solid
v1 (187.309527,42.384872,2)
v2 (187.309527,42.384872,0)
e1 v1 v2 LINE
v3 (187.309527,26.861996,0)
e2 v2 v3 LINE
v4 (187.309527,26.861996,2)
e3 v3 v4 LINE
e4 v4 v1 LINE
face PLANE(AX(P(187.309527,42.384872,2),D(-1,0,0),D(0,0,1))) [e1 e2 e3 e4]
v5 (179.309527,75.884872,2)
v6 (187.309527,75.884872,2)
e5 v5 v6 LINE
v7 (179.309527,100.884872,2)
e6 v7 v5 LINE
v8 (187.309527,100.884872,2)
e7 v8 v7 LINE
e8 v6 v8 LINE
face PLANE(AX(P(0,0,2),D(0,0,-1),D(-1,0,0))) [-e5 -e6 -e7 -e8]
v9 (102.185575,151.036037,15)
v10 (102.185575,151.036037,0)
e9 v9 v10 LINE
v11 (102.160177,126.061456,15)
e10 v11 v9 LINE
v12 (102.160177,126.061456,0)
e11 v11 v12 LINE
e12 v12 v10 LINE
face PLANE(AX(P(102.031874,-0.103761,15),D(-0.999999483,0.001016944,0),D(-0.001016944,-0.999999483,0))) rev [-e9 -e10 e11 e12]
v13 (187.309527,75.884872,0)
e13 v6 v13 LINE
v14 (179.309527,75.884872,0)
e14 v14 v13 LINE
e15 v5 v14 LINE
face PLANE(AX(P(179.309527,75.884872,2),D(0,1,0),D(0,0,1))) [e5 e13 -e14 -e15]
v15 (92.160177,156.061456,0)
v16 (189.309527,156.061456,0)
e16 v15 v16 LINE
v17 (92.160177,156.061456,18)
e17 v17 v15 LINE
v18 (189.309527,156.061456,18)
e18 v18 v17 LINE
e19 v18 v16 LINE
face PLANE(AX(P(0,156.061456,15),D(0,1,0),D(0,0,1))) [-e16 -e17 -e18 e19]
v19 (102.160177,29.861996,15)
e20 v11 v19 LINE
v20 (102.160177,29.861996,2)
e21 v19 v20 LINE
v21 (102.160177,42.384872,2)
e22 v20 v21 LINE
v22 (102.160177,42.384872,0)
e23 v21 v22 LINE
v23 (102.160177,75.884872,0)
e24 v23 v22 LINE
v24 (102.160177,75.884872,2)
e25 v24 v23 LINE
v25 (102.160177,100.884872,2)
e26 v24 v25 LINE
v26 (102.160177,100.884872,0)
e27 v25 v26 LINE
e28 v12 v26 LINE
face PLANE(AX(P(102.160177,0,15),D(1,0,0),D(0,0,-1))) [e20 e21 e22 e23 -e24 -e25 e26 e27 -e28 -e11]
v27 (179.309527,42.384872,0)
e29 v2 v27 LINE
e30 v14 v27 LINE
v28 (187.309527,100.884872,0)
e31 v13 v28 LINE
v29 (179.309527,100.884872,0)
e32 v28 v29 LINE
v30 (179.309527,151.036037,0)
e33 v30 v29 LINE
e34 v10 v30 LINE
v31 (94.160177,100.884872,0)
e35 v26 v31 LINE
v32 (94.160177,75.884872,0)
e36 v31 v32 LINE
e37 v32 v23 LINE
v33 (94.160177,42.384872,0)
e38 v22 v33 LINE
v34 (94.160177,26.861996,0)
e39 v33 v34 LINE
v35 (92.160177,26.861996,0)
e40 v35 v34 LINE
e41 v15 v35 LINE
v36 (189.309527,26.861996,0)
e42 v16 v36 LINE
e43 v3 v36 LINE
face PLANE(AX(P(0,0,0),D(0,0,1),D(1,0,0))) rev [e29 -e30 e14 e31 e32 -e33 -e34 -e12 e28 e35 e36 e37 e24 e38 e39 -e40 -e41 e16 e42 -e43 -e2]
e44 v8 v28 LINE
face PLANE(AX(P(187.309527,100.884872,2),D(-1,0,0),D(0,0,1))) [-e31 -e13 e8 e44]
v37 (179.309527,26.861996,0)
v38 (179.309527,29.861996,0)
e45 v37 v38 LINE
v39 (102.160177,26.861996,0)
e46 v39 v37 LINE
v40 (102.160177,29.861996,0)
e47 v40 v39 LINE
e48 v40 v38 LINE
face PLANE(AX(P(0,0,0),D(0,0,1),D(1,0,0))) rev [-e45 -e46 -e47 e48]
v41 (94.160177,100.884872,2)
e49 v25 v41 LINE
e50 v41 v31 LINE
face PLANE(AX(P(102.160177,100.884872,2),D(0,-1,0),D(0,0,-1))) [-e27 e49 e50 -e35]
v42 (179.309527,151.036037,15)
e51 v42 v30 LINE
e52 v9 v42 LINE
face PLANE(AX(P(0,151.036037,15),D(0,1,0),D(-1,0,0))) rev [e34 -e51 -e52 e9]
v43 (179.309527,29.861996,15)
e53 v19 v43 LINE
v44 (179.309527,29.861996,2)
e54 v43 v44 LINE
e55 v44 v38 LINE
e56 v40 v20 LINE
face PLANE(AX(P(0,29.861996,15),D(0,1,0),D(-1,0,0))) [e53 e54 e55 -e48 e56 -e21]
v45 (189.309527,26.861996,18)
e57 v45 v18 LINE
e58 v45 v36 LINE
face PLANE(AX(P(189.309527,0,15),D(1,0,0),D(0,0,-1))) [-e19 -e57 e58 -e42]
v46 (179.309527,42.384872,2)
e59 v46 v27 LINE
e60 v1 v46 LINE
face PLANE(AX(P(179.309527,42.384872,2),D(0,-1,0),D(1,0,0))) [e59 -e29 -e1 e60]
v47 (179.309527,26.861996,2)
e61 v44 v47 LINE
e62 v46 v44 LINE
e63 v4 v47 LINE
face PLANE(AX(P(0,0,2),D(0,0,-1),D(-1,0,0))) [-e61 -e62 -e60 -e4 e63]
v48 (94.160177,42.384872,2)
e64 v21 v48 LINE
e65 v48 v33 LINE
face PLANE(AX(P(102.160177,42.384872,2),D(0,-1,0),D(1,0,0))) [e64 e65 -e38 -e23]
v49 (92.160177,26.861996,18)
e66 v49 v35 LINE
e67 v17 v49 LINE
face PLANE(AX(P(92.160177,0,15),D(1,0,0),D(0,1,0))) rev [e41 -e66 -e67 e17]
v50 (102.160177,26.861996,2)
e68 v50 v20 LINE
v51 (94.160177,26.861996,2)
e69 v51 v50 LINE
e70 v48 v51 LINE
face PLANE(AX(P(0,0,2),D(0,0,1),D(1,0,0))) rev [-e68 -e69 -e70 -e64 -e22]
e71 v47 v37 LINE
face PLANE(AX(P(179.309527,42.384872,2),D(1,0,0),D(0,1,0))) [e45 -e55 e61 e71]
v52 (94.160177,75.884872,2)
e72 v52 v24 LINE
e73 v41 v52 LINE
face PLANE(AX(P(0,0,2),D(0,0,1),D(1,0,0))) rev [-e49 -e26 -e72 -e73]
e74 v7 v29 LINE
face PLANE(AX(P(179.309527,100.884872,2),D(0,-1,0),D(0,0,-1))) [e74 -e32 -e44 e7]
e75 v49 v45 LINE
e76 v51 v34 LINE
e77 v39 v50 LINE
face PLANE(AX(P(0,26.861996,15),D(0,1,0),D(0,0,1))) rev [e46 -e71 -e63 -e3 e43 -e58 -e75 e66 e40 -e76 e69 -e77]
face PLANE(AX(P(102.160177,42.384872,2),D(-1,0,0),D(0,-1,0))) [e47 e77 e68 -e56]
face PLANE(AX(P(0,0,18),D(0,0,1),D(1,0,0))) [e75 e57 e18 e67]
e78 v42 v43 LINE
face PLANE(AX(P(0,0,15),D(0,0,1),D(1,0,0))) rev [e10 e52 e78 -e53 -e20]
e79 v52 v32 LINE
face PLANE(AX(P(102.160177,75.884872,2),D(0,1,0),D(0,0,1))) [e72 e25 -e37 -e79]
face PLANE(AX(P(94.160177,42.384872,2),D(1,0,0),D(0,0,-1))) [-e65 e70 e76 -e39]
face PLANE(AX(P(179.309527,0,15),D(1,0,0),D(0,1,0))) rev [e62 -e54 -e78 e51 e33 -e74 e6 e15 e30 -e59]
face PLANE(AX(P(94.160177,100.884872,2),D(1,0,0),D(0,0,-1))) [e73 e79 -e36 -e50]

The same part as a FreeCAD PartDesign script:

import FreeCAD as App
import Part
import Sketcher
Q = App.Units.Quantity


def add_polygon(sketch, points):
    """Adds a closed chain of lines whose ends are joined by coincident constraints."""
    first, n = sketch.GeometryCount, len(points)
    for a, b in zip(points, points[1:] + points[:1]):
        sketch.addGeometry(Part.LineSegment(App.Vector(*a, 0), App.Vector(*b, 0)), False)
    for i in range(n):
        sketch.addConstraint(Sketcher.Constraint("Coincident", first + i, 2, first + (i + 1) % n, 1))

doc = App.newDocument("Part")
body = doc.addObject("PartDesign::Body", "Body")

# Sketch on XY plane
sketch1 = doc.addObject("Sketcher::SketchObject", "Sketch")
body.addObject(sketch1)
sketch1.AttachmentSupport = (doc.XY_Plane, [""])
sketch1.MapMode = "FlatFace"
add_polygon(sketch1, [(92, 156), (92, 27), (189, 27), (189, 156)])  # lines 0-3
add_polygon(sketch1, [(102, 30), (102, 126), (102, 151), (179, 151), (179, 30)])  # lines 4-8
sketch1.addConstraint(Sketcher.Constraint("Vertical", 0))
sketch1.addConstraint(Sketcher.Constraint("Horizontal", 1))
sketch1.addConstraint(Sketcher.Constraint("Vertical", 2))
sketch1.addConstraint(Sketcher.Constraint("Horizontal", 3))
sketch1.addConstraint(Sketcher.Constraint("Vertical", 4))
sketch1.addConstraint(Sketcher.Constraint("Horizontal", 6))
sketch1.addConstraint(Sketcher.Constraint("Vertical", 7))
sketch1.addConstraint(Sketcher.Constraint("Horizontal", 8))
sketch1.addConstraint(Sketcher.Constraint("DistanceX", 3, 2, 4, 2, Q("10 mm")))
sketch1.addConstraint(Sketcher.Constraint("DistanceY", 4, 2, 3, 2, Q("30 mm")))
sketch1.addConstraint(Sketcher.Constraint("DistanceX", 6, 2, 2, 2, Q("10 mm")))
sketch1.addConstraint(Sketcher.Constraint("DistanceY", 1, 2, 7, 2, Q("3 mm")))
sketch1.addConstraint(Sketcher.Constraint("DistanceX", 1, 1, 1, 2, Q("97.14935 mm")))
sketch1.addConstraint(Sketcher.Constraint("DistanceY", 0, 2, 0, 1, Q("129.19946 mm")))
sketch1.addConstraint(Sketcher.Constraint("DistanceY", 7, 2, 7, 1, Q("121.174041 mm")))
sketch1.addConstraint(Sketcher.Constraint("DistanceX", 6, 1, 6, 2, Q("77.123952 mm")))
sketch1.addConstraint(Sketcher.Constraint("DistanceX", -1, 1, 0, 2, Q("92.160177 mm")))
sketch1.addConstraint(Sketcher.Constraint("DistanceY", -1, 1, 0, 2, Q("26.861996 mm")))
pad1 = doc.addObject("PartDesign::Pad", "Pad")
body.addObject(pad1)
pad1.Profile = sketch1
pad1.Length = 15

# Sketch on XY plane
sketch2 = doc.addObject("Sketcher::SketchObject", "Sketch001")
body.addObject(sketch2)
sketch2.AttachmentSupport = (doc.XY_Plane, [""])
sketch2.MapMode = "FlatFace"
sketch2.AttachmentOffset = App.Placement(App.Vector(0, 0, 15), App.Rotation())
add_polygon(sketch2, [(92, 156), (92, 27), (189, 27), (189, 156)])  # lines 0-3
sketch2.addConstraint(Sketcher.Constraint("Vertical", 0))
sketch2.addConstraint(Sketcher.Constraint("Horizontal", 1))
sketch2.addConstraint(Sketcher.Constraint("Vertical", 2))
sketch2.addConstraint(Sketcher.Constraint("Horizontal", 3))
sketch2.addConstraint(Sketcher.Constraint("DistanceX", 1, 1, 1, 2, Q("97.14935 mm")))
sketch2.addConstraint(Sketcher.Constraint("DistanceY", 0, 2, 0, 1, Q("129.19946 mm")))
sketch2.addConstraint(Sketcher.Constraint("DistanceX", -1, 1, 0, 2, Q("92.160177 mm")))
sketch2.addConstraint(Sketcher.Constraint("DistanceY", -1, 1, 0, 2, Q("26.861996 mm")))
pad2 = doc.addObject("PartDesign::Pad", "Pad001")
body.addObject(pad2)
pad2.Profile = sketch2
pad2.Length = 3

# Sketch on XY plane
sketch3 = doc.addObject("Sketcher::SketchObject", "Sketch002")
body.addObject(sketch3)
sketch3.AttachmentSupport = (doc.XY_Plane, [""])
sketch3.MapMode = "FlatFace"
add_polygon(sketch3, [(94, 42), (94, 17), (102, 17), (102, 42)])  # lines 0-3
add_polygon(sketch3, [(179, 101), (179, 76), (187, 76), (187, 101)])  # lines 4-7
add_polygon(sketch3, [(94, 101), (94, 76), (102, 76), (102, 101)])  # lines 8-11
add_polygon(sketch3, [(179, 42), (179, 17), (187, 17), (187, 42)])  # lines 12-15
sketch3.addConstraint(Sketcher.Constraint("Vertical", 0))
sketch3.addConstraint(Sketcher.Constraint("Horizontal", 1))
sketch3.addConstraint(Sketcher.Constraint("Vertical", 2))
sketch3.addConstraint(Sketcher.Constraint("Horizontal", 3))
sketch3.addConstraint(Sketcher.Constraint("Vertical", 4))
sketch3.addConstraint(Sketcher.Constraint("Horizontal", 5))
sketch3.addConstraint(Sketcher.Constraint("Vertical", 6))
sketch3.addConstraint(Sketcher.Constraint("Horizontal", 7))
sketch3.addConstraint(Sketcher.Constraint("Vertical", 8))
sketch3.addConstraint(Sketcher.Constraint("Horizontal", 9))
sketch3.addConstraint(Sketcher.Constraint("Vertical", 10))
sketch3.addConstraint(Sketcher.Constraint("Horizontal", 11))
sketch3.addConstraint(Sketcher.Constraint("Vertical", 12))
sketch3.addConstraint(Sketcher.Constraint("Horizontal", 13))
sketch3.addConstraint(Sketcher.Constraint("Vertical", 14))
sketch3.addConstraint(Sketcher.Constraint("Horizontal", 15))
sketch3.addConstraint(Sketcher.Constraint("Horizontal", 5, 2, 8, 2))
sketch3.addConstraint(Sketcher.Constraint("Horizontal", 7, 2, 10, 2))
sketch3.addConstraint(Sketcher.Constraint("Horizontal", 1, 2, 12, 2))
sketch3.addConstraint(Sketcher.Constraint("Horizontal", 3, 2, 14, 2))
sketch3.addConstraint(Sketcher.Constraint("Vertical", 3, 2, 8, 2))
sketch3.addConstraint(Sketcher.Constraint("Vertical", 2, 2, 9, 2))
sketch3.addConstraint(Sketcher.Constraint("Vertical", 7, 2, 12, 2))
sketch3.addConstraint(Sketcher.Constraint("Vertical", 6, 2, 13, 2))
sketch3.addConstraint(Sketcher.Constraint("Equal", 3, 5))
sketch3.addConstraint(Sketcher.Constraint("Equal", 2, 4))
sketch3.addConstraint(Sketcher.Constraint("DistanceX", 1, 1, 1, 2, Q("8 mm")))
sketch3.addConstraint(Sketcher.Constraint("DistanceY", 0, 2, 0, 1, Q("25 mm")))
sketch3.addConstraint(Sketcher.Constraint("DistanceY", 2, 2, 4, 2, Q("33.5 mm")))
sketch3.addConstraint(Sketcher.Constraint("DistanceX", 2, 2, 4, 2, Q("77.14935 mm")))
sketch3.addConstraint(Sketcher.Constraint("DistanceX", -1, 1, 0, 2, Q("94.160177 mm")))
sketch3.addConstraint(Sketcher.Constraint("DistanceY", -1, 1, 0, 2, Q("17.384872 mm")))
pocket1 = doc.addObject("PartDesign::Pocket", "Pocket")
body.addObject(pocket1)
pocket1.Profile = sketch3
pocket1.Length = 2
pocket1.Reversed = True

doc.recompute()
